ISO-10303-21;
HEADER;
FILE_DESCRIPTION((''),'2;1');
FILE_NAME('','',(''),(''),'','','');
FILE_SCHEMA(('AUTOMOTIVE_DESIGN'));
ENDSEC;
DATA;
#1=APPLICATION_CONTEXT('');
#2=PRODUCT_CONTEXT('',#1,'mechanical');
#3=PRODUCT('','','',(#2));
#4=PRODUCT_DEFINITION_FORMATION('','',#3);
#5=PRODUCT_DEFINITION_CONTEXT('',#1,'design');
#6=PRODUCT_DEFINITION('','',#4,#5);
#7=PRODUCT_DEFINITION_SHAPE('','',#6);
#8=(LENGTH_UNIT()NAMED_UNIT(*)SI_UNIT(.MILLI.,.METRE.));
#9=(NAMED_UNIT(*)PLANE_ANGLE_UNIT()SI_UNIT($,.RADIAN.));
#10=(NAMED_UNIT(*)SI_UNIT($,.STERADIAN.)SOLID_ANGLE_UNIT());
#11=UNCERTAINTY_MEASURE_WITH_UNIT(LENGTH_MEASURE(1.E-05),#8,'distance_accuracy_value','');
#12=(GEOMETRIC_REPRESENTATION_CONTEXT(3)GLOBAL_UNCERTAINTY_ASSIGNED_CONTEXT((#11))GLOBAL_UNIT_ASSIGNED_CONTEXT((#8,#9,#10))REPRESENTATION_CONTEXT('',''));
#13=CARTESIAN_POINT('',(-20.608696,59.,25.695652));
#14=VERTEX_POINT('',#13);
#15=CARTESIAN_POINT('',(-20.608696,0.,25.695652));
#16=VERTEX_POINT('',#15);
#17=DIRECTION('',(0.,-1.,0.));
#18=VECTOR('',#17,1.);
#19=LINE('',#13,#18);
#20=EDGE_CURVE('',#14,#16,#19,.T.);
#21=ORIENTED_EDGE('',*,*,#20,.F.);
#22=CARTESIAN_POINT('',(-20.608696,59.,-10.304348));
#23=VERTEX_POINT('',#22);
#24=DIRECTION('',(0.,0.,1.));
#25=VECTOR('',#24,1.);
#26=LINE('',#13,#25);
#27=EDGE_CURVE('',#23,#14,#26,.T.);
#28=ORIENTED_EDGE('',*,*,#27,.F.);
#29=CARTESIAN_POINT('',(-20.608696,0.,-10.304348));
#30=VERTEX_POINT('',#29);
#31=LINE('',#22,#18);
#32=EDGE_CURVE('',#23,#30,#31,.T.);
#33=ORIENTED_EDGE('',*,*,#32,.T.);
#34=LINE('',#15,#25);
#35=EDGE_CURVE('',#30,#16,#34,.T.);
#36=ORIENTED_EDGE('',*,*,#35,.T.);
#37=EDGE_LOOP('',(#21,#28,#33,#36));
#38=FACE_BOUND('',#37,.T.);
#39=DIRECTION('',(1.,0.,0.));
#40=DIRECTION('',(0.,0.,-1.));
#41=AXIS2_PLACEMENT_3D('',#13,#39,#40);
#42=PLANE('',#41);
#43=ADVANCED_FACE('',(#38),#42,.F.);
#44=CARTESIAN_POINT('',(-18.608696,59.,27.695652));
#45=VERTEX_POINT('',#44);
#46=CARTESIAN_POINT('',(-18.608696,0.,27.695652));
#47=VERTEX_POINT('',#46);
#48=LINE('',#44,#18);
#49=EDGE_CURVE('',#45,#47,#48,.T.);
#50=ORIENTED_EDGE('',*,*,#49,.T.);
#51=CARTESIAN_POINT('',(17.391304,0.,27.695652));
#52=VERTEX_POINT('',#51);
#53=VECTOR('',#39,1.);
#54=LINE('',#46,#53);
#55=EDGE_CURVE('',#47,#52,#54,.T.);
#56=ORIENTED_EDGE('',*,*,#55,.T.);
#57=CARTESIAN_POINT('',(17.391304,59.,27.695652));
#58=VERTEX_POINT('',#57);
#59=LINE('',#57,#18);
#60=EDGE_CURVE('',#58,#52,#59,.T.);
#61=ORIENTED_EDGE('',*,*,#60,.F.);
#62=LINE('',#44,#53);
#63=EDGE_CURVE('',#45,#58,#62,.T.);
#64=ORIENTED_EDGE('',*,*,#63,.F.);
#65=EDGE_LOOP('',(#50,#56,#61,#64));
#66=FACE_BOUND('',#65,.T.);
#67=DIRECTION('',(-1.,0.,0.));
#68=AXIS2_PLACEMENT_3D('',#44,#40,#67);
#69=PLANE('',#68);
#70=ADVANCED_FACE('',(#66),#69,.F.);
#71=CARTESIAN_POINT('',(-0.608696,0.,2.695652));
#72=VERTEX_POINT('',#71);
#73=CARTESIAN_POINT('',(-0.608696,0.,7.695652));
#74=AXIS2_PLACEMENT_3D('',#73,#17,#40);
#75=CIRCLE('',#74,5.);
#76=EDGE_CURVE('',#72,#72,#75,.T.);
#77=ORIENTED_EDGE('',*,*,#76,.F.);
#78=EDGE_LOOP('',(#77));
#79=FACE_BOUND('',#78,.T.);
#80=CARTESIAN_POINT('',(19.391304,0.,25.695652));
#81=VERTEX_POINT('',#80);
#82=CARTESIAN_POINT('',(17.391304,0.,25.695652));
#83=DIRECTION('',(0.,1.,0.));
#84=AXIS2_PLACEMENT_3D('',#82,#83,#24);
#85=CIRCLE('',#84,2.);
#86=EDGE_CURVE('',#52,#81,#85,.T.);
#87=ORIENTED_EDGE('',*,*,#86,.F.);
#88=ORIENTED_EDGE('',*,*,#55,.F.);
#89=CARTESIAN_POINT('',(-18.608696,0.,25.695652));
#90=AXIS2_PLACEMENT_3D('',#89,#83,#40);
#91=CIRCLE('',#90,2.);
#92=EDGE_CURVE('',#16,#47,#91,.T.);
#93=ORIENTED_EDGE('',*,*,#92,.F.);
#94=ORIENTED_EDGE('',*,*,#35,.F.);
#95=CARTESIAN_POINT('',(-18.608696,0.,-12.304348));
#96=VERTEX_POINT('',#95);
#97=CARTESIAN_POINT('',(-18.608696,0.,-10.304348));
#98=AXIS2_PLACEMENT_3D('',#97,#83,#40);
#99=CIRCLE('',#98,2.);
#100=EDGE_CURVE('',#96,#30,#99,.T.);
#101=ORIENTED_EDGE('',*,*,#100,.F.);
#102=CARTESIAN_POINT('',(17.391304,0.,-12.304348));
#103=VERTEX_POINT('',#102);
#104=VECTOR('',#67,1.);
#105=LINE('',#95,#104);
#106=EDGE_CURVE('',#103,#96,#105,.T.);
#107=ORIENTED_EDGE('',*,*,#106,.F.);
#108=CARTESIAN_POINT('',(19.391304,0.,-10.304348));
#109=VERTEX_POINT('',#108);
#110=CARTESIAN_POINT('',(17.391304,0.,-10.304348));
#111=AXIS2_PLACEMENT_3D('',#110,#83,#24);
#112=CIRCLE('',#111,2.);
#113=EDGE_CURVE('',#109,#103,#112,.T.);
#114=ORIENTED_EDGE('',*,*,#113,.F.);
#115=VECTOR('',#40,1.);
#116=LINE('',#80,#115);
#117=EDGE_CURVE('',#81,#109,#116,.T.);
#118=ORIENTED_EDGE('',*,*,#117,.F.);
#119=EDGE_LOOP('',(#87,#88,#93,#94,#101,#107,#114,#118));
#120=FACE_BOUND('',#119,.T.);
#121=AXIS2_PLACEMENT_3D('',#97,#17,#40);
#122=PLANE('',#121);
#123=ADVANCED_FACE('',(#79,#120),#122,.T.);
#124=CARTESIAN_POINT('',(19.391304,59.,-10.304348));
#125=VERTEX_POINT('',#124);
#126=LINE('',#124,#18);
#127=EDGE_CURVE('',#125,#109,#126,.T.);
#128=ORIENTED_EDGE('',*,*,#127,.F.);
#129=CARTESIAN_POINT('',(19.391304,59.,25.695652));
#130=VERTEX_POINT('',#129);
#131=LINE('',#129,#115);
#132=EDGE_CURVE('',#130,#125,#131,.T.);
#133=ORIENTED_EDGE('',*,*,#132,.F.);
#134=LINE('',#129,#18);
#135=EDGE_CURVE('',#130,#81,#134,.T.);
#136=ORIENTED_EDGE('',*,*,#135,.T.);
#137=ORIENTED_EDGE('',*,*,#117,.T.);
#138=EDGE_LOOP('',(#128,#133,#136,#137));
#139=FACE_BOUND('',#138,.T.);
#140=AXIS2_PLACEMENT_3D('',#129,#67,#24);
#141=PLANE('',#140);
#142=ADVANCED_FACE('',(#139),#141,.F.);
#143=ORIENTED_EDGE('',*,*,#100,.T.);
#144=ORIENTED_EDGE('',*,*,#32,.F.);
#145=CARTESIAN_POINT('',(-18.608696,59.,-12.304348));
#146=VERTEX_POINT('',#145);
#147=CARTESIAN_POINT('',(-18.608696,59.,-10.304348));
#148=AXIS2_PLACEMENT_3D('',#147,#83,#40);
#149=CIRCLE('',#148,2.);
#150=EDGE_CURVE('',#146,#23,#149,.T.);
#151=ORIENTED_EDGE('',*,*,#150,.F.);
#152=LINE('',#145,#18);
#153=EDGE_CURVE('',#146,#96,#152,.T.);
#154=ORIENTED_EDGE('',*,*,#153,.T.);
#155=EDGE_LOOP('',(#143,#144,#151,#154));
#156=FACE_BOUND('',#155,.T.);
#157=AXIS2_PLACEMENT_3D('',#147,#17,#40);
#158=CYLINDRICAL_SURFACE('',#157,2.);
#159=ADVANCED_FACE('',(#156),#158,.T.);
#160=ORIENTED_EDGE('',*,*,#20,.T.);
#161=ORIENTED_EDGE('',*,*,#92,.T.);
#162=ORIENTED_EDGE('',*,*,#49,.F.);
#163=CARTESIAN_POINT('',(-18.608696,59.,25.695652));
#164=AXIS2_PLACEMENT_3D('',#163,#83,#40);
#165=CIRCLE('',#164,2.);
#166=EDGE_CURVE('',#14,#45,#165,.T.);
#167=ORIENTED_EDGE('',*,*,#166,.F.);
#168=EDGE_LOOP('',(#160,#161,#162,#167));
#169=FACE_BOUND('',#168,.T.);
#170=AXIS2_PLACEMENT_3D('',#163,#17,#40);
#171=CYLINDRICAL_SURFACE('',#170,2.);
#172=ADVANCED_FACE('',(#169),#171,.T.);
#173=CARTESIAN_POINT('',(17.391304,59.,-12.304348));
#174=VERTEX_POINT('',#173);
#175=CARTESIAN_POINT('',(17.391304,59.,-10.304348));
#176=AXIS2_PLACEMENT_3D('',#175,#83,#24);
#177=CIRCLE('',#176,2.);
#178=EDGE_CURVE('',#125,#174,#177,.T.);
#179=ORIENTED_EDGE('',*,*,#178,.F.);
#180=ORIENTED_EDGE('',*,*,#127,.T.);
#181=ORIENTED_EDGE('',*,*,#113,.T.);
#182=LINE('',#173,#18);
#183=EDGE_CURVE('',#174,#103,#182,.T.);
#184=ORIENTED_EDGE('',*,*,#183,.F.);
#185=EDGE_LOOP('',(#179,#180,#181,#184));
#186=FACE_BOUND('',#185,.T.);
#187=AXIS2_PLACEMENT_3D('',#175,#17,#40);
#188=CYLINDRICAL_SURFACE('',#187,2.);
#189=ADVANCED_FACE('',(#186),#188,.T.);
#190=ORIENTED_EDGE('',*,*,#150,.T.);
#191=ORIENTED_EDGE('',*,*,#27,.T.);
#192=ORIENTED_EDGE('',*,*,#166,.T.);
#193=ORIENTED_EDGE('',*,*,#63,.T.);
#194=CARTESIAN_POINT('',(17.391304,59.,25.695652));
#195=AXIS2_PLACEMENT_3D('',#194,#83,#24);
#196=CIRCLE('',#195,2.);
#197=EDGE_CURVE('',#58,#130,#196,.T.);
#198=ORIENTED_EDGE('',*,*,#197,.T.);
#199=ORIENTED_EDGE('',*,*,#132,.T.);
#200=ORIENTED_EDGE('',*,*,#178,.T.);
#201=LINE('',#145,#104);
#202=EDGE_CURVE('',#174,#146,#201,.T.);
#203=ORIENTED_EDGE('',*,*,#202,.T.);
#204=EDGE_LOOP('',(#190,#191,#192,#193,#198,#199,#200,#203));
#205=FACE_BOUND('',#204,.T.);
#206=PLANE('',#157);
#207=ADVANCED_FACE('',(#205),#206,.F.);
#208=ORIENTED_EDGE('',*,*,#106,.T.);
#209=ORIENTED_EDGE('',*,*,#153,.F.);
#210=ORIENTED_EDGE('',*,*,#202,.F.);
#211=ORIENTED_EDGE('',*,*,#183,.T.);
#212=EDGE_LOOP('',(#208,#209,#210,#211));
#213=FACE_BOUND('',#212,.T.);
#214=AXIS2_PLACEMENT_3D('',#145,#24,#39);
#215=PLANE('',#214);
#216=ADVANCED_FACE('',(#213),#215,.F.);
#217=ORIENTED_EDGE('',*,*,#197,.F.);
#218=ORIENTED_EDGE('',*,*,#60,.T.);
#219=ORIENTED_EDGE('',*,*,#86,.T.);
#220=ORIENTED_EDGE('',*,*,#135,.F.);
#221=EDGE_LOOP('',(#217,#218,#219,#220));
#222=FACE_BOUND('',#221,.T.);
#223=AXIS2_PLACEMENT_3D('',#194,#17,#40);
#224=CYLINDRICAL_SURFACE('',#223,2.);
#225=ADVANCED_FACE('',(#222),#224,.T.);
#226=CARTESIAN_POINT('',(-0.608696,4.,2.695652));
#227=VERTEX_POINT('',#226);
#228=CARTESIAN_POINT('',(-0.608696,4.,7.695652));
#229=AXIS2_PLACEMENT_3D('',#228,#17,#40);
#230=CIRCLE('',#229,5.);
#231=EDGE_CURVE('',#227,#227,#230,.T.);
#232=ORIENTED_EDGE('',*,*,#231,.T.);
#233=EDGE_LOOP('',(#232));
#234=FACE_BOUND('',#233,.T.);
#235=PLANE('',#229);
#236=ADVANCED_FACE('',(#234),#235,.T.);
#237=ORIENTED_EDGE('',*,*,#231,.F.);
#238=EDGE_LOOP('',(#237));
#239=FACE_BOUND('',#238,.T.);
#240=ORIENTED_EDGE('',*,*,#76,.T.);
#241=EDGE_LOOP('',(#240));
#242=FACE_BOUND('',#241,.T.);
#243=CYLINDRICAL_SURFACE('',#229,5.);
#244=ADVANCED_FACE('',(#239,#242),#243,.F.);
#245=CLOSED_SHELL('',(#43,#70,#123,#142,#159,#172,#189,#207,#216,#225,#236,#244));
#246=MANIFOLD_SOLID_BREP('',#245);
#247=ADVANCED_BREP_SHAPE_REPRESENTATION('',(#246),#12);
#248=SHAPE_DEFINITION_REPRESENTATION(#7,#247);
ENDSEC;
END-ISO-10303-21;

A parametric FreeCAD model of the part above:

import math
import FreeCAD as App
import Part
import Sketcher
Q = App.Units.Quantity

doc = App.newDocument("Part")
body = doc.addObject("PartDesign::Body", "Body")

sketch1 = body.newObject("Sketcher::SketchObject", "Sketch")
sketch1.AttachmentSupport = (doc.getObject("XZ_Plane"), [""])
sketch1.MapMode = "FlatFace"
sketch1.addGeometry(Part.LineSegment(App.Vector(-18.608696, 27.695652, 0), App.Vector(17.391304, 27.695652, 0)), False)
sketch1.addGeometry(Part.ArcOfCircle(Part.Circle(App.Vector(17.391304, 25.695652, 0), App.Vector(0, 0, 1), 2), math.radians(0), math.radians(90)), False)
sketch1.addGeometry(Part.LineSegment(App.Vector(19.391304, 25.695652, 0), App.Vector(19.391304, -10.304348, 0)), False)
sketch1.addGeometry(Part.ArcOfCircle(Part.Circle(App.Vector(17.391304, -10.304348, 0), App.Vector(0, 0, 1), 2), math.radians(-90), math.radians(0)), False)
sketch1.addGeometry(Part.LineSegment(App.Vector(17.391304, -12.304348, 0), App.Vector(-18.608696, -12.304348, 0)), False)
sketch1.addGeometry(Part.ArcOfCircle(Part.Circle(App.Vector(-18.608696, -10.304348, 0), App.Vector(0, 0, 1), 2), math.radians(180), math.radians(270)), False)
sketch1.addGeometry(Part.LineSegment(App.Vector(-20.608696, -10.304348, 0), App.Vector(-20.608696, 25.695652, 0)), False)
sketch1.addGeometry(Part.ArcOfCircle(Part.Circle(App.Vector(-18.608696, 25.695652, 0), App.Vector(0, 0, 1), 2), math.radians(90), math.radians(180)), False)
sketch1.addConstraint(Sketcher.Constraint("Tangent", 0, 2, 1, 2))
sketch1.addConstraint(Sketcher.Constraint("Tangent", 1, 1, 2, 1))
sketch1.addConstraint(Sketcher.Constraint("Tangent", 2, 2, 3, 2))
sketch1.addConstraint(Sketcher.Constraint("Tangent", 3, 1, 4, 1))
sketch1.addConstraint(Sketcher.Constraint("Tangent", 4, 2, 5, 2))
sketch1.addConstraint(Sketcher.Constraint("Tangent", 5, 1, 6, 1))
sketch1.addConstraint(Sketcher.Constraint("Tangent", 6, 2, 7, 2))
sketch1.addConstraint(Sketcher.Constraint("Tangent", 7, 1, 0, 1))
sketch1.addConstraint(Sketcher.Constraint("Horizontal", 0))
sketch1.addConstraint(Sketcher.Constraint("Vertical", 2))
sketch1.addConstraint(Sketcher.Constraint("Horizontal", 4))
sketch1.addConstraint(Sketcher.Constraint("Vertical", 6))
sketch1.addConstraint(Sketcher.Constraint("Equal", 1, 3))
sketch1.addConstraint(Sketcher.Constraint("Equal", 3, 5))
sketch1.addConstraint(Sketcher.Constraint("Equal", 5, 7))
sketch1.addConstraint(Sketcher.Constraint("Equal", 4, 2))
sketch1.addConstraint(Sketcher.Constraint("Radius", 1, Q("2 mm")))
sketch1.addConstraint(Sketcher.Constraint("DistanceX", 0, 1, 0, 2, Q("36 mm")))
sketch1.addConstraint(Sketcher.Constraint("DistanceX", -1, 1, 1, 3, Q("17.391304 mm")))
sketch1.addConstraint(Sketcher.Constraint("DistanceY", -1, 1, 1, 3, Q("25.695652 mm")))
pad1 = body.newObject("PartDesign::Pad", "Pad")
pad1.Profile = sketch1
pad1.Length = 59
pad1.Reversed = True

sketch2 = body.newObject("Sketcher::SketchObject", "Sketch001")
sketch2.AttachmentSupport = (doc.getObject("XZ_Plane"), [""])
sketch2.MapMode = "FlatFace"
sketch2.addGeometry(Part.Circle(App.Vector(-0.608696, 7.695652, 0), App.Vector(0, 0, 1), 5), False)
sketch2.addConstraint(Sketcher.Constraint("Diameter", 0, Q("10 mm")))
sketch2.addConstraint(Sketcher.Constraint("DistanceX", 0, 3, -1, 1, Q("0.608696 mm")))
sketch2.addConstraint(Sketcher.Constraint("DistanceY", -1, 1, 0, 3, Q("7.695652 mm")))
pocket1 = body.newObject("PartDesign::Pocket", "Pocket")
pocket1.Profile = sketch2
pocket1.Length = 4

doc.recompute()
